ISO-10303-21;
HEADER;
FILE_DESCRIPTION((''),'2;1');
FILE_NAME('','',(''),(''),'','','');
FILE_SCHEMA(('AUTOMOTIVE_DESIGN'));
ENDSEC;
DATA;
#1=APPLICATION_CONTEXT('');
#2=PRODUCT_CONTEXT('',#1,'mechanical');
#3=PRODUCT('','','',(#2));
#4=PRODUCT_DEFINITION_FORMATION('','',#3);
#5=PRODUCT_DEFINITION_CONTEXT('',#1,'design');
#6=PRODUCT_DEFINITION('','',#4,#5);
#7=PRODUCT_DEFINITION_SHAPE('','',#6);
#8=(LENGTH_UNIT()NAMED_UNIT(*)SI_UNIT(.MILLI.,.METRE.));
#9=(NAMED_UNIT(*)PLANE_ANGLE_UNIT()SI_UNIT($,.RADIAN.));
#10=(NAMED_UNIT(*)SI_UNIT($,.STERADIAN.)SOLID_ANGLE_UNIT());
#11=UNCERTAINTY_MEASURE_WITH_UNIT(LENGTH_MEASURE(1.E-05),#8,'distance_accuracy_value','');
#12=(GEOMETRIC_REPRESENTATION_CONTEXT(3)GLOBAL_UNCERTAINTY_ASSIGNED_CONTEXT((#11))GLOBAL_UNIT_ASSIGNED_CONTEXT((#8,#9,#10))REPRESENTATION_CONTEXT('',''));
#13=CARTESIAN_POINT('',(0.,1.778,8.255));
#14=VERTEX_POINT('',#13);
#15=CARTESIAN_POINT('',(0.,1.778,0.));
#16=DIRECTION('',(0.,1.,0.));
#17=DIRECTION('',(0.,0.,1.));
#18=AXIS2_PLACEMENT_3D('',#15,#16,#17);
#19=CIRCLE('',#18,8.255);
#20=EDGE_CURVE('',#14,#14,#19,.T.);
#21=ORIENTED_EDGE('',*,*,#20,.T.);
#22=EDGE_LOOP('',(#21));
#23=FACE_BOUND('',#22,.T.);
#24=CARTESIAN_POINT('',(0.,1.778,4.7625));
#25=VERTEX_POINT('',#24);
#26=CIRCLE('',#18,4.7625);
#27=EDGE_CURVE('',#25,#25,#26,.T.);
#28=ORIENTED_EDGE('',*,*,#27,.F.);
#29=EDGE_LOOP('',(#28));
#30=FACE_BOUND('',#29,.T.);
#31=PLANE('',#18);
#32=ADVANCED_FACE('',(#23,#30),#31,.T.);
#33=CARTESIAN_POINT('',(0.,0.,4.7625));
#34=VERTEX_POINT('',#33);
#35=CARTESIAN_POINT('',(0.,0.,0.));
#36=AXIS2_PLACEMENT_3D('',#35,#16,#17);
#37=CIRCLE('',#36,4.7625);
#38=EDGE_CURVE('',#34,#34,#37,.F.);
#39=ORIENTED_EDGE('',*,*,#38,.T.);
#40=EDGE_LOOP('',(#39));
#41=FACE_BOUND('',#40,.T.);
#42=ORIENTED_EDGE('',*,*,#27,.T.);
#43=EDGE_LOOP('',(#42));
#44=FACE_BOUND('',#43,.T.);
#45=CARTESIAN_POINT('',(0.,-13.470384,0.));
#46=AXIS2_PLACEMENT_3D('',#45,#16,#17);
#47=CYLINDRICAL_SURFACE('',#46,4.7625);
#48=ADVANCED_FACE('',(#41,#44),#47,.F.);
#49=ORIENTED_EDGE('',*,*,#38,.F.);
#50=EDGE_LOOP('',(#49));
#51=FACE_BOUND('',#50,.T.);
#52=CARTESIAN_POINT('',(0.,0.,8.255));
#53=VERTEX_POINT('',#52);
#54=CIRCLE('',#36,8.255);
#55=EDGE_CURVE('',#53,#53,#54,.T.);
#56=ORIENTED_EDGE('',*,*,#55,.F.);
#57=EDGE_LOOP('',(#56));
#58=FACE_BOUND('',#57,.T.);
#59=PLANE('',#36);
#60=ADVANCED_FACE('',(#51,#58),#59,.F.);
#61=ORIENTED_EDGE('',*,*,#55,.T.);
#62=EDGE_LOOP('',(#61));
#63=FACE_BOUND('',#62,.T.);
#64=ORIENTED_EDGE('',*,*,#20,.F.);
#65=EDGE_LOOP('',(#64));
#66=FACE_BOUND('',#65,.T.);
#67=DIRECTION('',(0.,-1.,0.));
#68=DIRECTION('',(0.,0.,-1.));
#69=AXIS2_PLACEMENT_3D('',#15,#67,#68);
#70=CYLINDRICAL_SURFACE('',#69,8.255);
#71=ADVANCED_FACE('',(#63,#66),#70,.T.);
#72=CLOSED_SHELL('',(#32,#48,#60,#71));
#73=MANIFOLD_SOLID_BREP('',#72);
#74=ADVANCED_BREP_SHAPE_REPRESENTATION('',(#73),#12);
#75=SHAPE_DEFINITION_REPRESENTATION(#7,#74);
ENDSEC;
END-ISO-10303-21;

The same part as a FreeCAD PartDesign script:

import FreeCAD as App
import Part
import Sketcher
Q = App.Units.Quantity

doc = App.newDocument("Part")
body = doc.addObject("PartDesign::Body", "Body")

sketch1 = body.newObject("Sketcher::SketchObject", "Sketch")
sketch1.AttachmentSupport = (doc.getObject("XZ_Plane"), [""])
sketch1.MapMode = "FlatFace"
sketch1.addGeometry(Part.Circle(App.Vector(0, 0, 0), App.Vector(0, 0, 1), 8), False)
sketch1.addConstraint([
    Sketcher.Constraint("Coincident", 0, 3, -1, 1),
    Sketcher.Constraint("Diameter", 0, Q("0.65 in")),
])
pad1 = body.newObject("PartDesign::Pad", "Pad")
pad1.Profile = sketch1
pad1.Length = Q("0.07 in")
pad1.Reversed = True

sketch2 = body.newObject("Sketcher::SketchObject", "Sketch001")
sketch2.AttachmentSupport = (doc.getObject("XZ_Plane"), [""])
sketch2.MapMode = "FlatFace"
sketch2.AttachmentOffset = App.Placement(App.Vector(0, 0, -0.07 * 25.4), App.Rotation())
sketch2.addGeometry(Part.Circle(App.Vector(0, 0, 0), App.Vector(0, 0, 1), 4.8), False)
sketch2.addConstraint([
    Sketcher.Constraint("Coincident", 0, 3, -1, 1),
    Sketcher.Constraint("Diameter", 0, Q("0.375 in")),
])
pocket1 = body.newObject("PartDesign::Pocket", "Pocket")
pocket1.Profile = sketch2
pocket1.Length = Q("0.07 in")
pocket1.Reversed = True

doc.recompute()
